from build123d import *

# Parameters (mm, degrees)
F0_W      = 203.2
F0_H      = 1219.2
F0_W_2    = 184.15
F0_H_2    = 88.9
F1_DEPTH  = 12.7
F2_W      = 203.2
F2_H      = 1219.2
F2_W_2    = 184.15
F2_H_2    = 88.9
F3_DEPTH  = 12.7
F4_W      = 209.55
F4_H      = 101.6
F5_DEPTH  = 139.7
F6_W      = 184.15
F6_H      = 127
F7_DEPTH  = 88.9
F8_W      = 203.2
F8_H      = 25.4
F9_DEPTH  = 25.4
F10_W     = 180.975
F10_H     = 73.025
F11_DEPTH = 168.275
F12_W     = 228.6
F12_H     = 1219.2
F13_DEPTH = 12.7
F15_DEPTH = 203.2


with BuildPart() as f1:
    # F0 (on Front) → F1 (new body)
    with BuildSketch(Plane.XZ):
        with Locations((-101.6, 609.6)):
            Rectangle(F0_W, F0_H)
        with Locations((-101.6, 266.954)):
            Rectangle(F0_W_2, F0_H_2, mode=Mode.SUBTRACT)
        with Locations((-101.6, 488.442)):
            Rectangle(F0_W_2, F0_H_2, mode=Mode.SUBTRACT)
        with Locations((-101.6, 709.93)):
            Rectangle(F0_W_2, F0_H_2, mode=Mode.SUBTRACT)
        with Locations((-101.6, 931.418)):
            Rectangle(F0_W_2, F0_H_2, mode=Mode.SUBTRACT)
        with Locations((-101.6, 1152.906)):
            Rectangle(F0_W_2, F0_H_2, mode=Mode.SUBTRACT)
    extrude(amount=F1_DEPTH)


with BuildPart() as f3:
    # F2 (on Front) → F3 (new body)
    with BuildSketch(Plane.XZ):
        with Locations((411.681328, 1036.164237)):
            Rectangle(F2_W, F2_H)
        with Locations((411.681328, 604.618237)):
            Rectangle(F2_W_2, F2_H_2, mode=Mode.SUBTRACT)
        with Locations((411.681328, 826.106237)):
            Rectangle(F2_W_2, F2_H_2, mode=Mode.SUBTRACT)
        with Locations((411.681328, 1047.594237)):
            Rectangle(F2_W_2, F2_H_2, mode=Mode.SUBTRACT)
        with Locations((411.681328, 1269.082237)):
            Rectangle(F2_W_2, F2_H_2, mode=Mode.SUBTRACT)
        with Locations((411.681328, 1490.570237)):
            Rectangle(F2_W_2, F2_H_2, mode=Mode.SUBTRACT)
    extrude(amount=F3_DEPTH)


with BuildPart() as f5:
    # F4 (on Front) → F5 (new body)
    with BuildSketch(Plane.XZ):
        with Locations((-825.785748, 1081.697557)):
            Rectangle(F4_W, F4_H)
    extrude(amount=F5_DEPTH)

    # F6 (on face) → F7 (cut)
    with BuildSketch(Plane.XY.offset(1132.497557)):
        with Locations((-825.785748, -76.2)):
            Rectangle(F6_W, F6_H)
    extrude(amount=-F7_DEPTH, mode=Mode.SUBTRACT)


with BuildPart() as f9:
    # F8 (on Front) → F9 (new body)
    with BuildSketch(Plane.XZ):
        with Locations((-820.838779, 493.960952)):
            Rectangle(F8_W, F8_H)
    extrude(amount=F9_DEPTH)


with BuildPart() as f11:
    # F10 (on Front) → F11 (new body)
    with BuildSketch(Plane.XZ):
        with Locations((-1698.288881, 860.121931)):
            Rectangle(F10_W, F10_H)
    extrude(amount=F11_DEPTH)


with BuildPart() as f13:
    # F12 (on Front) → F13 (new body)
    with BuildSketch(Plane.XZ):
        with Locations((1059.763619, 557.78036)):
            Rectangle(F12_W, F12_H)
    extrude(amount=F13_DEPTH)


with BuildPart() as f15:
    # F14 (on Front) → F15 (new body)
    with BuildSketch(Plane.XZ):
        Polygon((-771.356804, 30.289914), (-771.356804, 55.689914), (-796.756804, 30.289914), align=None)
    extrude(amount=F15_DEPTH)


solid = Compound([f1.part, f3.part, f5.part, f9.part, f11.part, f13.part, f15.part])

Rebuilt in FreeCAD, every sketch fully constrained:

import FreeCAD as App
import Part
import Sketcher
Q = App.Units.Quantity


def add_polygon(sketch, points):
    """Adds a closed chain of lines whose ends are joined by coincident constraints."""
    first, n = sketch.GeometryCount, len(points)
    for a, b in zip(points, points[1:] + points[:1]):
        sketch.addGeometry(Part.LineSegment(App.Vector(*a, 0), App.Vector(*b, 0)), False)
    for i in range(n):
        sketch.addConstraint(Sketcher.Constraint("Coincident", first + i, 2, first + (i + 1) % n, 1))

doc = App.newDocument("Part")
body = doc.addObject("PartDesign::Body", "Body")

sketch1 = body.newObject("Sketcher::SketchObject", "Sketch")
sketch1.AttachmentSupport = (doc.getObject("XZ_Plane"), [""])
sketch1.MapMode = "FlatFace"
add_polygon(sketch1, [(-203.2, 1219.2), (-203.2, 0), (0, 0), (0, 1219.2)])
add_polygon(sketch1, [(-9.525, 222.504), (-193.675, 222.504), (-193.675, 311.404), (-9.525, 311.404)])
add_polygon(sketch1, [(-9.525, 443.992), (-193.675, 443.992), (-193.675, 532.892), (-9.525, 532.892)])
add_polygon(sketch1, [(-9.525, 665.48), (-193.675, 665.48), (-193.675, 754.38), (-9.525, 754.38)])
add_polygon(sketch1, [(-9.525, 886.968), (-193.675, 886.968), (-193.675, 975.868), (-9.525, 975.868)])
add_polygon(sketch1, [(-9.525, 1108.456), (-193.675, 1108.456), (-193.675, 1197.356), (-9.525, 1197.356)])
sketch1.addConstraint([
    Sketcher.Constraint("Vertical", 0),
    Sketcher.Constraint("Horizontal", 1),
    Sketcher.Constraint("Vertical", 2),
    Sketcher.Constraint("Horizontal", 3),
    Sketcher.Constraint("Horizontal", 4),
    Sketcher.Constraint("Vertical", 5),
    Sketcher.Constraint("Horizontal", 6),
    Sketcher.Constraint("Vertical", 7),
    Sketcher.Constraint("Horizontal", 8),
    Sketcher.Constraint("Vertical", 9),
    Sketcher.Constraint("Horizontal", 10),
    Sketcher.Constraint("Vertical", 11),
    Sketcher.Constraint("Horizontal", 12),
    Sketcher.Constraint("Vertical", 13),
    Sketcher.Constraint("Horizontal", 14),
    Sketcher.Constraint("Vertical", 15),
    Sketcher.Constraint("Horizontal", 16),
    Sketcher.Constraint("Vertical", 17),
    Sketcher.Constraint("Horizontal", 18),
    Sketcher.Constraint("Vertical", 19),
    Sketcher.Constraint("Horizontal", 20),
    Sketcher.Constraint("Vertical", 21),
    Sketcher.Constraint("Horizontal", 22),
    Sketcher.Constraint("Vertical", 23),
    Sketcher.Constraint("Coincident", 1, 2, -1, 1),
    Sketcher.Constraint("Vertical", 5, 2, 8, 2),
    Sketcher.Constraint("Vertical", 7, 2, 10, 2),
    Sketcher.Constraint("Vertical", 9, 2, 12, 2),
    Sketcher.Constraint("Vertical", 11, 2, 14, 2),
    Sketcher.Constraint("Vertical", 13, 2, 16, 2),
    Sketcher.Constraint("Vertical", 15, 2, 18, 2),
    Sketcher.Constraint("Vertical", 17, 2, 20, 2),
    Sketcher.Constraint("Vertical", 19, 2, 22, 2),
    Sketcher.Constraint("Equal", 7, 9),
    Sketcher.Constraint("Equal", 11, 13),
    Sketcher.Constraint("Equal", 15, 17),
    Sketcher.Constraint("Equal", 19, 21),
    Sketcher.Constraint("DistanceX", 1, 1, 1, 2, Q("8 in")),
    Sketcher.Constraint("DistanceY", 0, 2, 0, 1, Q("48 in")),
    Sketcher.Constraint("DistanceY", 5, 1, 5, 2, Q("3.5 in")),
    Sketcher.Constraint("DistanceX", 4, 2, 4, 1, Q("7.25 in")),
    Sketcher.Constraint("DistanceY", -1, 1, 12, 2, Q("26.2 in")),
    Sketcher.Constraint("DistanceY", -1, 1, 4, 2, Q("8.76 in")),
    Sketcher.Constraint("DistanceY", -1, 1, 8, 2, Q("17.48 in")),
    Sketcher.Constraint("DistanceY", -1, 1, 16, 2, Q("34.92 in")),
    Sketcher.Constraint("DistanceY", -1, 1, 20, 2, Q("43.64 in")),
    Sketcher.Constraint("DistanceX", 4, 2, -1, 1, Q("7.625 in")),
])
pad1 = body.newObject("PartDesign::Pad", "Pad")
pad1.Profile = sketch1
pad1.Length = Q("0.5 in")
body2 = doc.addObject("PartDesign::Body", "Body001")

sketch2 = body2.newObject("Sketcher::SketchObject", "Sketch001")
sketch2.AttachmentSupport = (doc.getObject("XZ_Plane001"), [""])
sketch2.MapMode = "FlatFace"
add_polygon(sketch2, [(310.081328, 1645.764237), (310.081328, 426.564237), (513.281328, 426.564237), (513.281328, 1645.764237)])
add_polygon(sketch2, [(503.756328, 560.168237), (319.606328, 560.168237), (319.606328, 649.068237), (503.756328, 649.068237)])
add_polygon(sketch2, [(503.756328, 781.656237), (319.606328, 781.656237), (319.606328, 870.556237), (503.756328, 870.556237)])
add_polygon(sketch2, [(503.756328, 1003.144237), (319.606328, 1003.144237), (319.606328, 1092.044237), (503.756328, 1092.044237)])
add_polygon(sketch2, [(503.756328, 1224.632237), (319.606328, 1224.632237), (319.606328, 1313.532237), (503.756328, 1313.532237)])
add_polygon(sketch2, [(503.756328, 1446.120237), (319.606328, 1446.120237), (319.606328, 1535.020237), (503.756328, 1535.020237)])
sketch2.addConstraint([
    Sketcher.Constraint("Vertical", 0),
    Sketcher.Constraint("Horizontal", 1),
    Sketcher.Constraint("Vertical", 2),
    Sketcher.Constraint("Horizontal", 3),
    Sketcher.Constraint("Horizontal", 4),
    Sketcher.Constraint("Vertical", 5),
    Sketcher.Constraint("Horizontal", 6),
    Sketcher.Constraint("Vertical", 7),
    Sketcher.Constraint("Horizontal", 8),
    Sketcher.Constraint("Vertical", 9),
    Sketcher.Constraint("Horizontal", 10),
    Sketcher.Constraint("Vertical", 11),
    Sketcher.Constraint("Horizontal", 12),
    Sketcher.Constraint("Vertical", 13),
    Sketcher.Constraint("Horizontal", 14),
    Sketcher.Constraint("Vertical", 15),
    Sketcher.Constraint("Horizontal", 16),
    Sketcher.Constraint("Vertical", 17),
    Sketcher.Constraint("Horizontal", 18),
    Sketcher.Constraint("Vertical", 19),
    Sketcher.Constraint("Horizontal", 20),
    Sketcher.Constraint("Vertical", 21),
    Sketcher.Constraint("Horizontal", 22),
    Sketcher.Constraint("Vertical", 23),
    Sketcher.Constraint("Vertical", 5, 2, 8, 2),
    Sketcher.Constraint("Vertical", 7, 2, 10, 2),
    Sketcher.Constraint("Vertical", 9, 2, 12, 2),
    Sketcher.Constraint("Vertical", 11, 2, 14, 2),
    Sketcher.Constraint("Vertical", 13, 2, 16, 2),
    Sketcher.Constraint("Vertical", 15, 2, 18, 2),
    Sketcher.Constraint("Vertical", 17, 2, 20, 2),
    Sketcher.Constraint("Vertical", 19, 2, 22, 2),
    Sketcher.Constraint("Equal", 7, 9),
    Sketcher.Constraint("Equal", 11, 13),
    Sketcher.Constraint("Equal", 15, 17),
    Sketcher.Constraint("Equal", 19, 21),
    Sketcher.Constraint("DistanceX", 1, 1, 1, 2, Q("8 in")),
    Sketcher.Constraint("DistanceY", 0, 2, 0, 1, Q("48 in")),
    Sketcher.Constraint("DistanceY", 5, 1, 5, 2, Q("3.5 in")),
    Sketcher.Constraint("DistanceX", 4, 2, 4, 1, Q("7.25 in")),
    Sketcher.Constraint("DistanceY", 0, 2, 4, 2, Q("5.26 in")),
    Sketcher.Constraint("DistanceY", 5, 2, 8, 2, Q("5.22 in")),
    Sketcher.Constraint("DistanceY", 9, 2, 12, 2, Q("5.22 in")),
    Sketcher.Constraint("DistanceY", 13, 2, 16, 2, Q("5.22 in")),
    Sketcher.Constraint("DistanceY", 17, 2, 20, 2, Q("5.22 in")),
    Sketcher.Constraint("DistanceX", 0, 2, 4, 2, Q("0.375 in")),
    Sketcher.Constraint("DistanceX", -1, 1, 0, 2, Q("310.081328 mm")),
    Sketcher.Constraint("DistanceY", -1, 1, 0, 2, Q("426.564237 mm")),
])
pad2 = body2.newObject("PartDesign::Pad", "Pad001")
pad2.Profile = sketch2
pad2.Length = Q("0.5 in")
body3 = doc.addObject("PartDesign::Body", "Body002")

sketch3 = body3.newObject("Sketcher::SketchObject", "Sketch002")
sketch3.AttachmentSupport = (doc.getObject("XZ_Plane002"), [""])
sketch3.MapMode = "FlatFace"
add_polygon(sketch3, [(-930.560748, 1132.497557), (-930.560748, 1030.897557), (-721.010748, 1030.897557), (-721.010748, 1132.497557)])
sketch3.addConstraint([
    Sketcher.Constraint("Vertical", 0),
    Sketcher.Constraint("Horizontal", 1),
    Sketcher.Constraint("Vertical", 2),
    Sketcher.Constraint("Horizontal", 3),
    Sketcher.Constraint("DistanceY", 0, 2, 0, 1, Q("4 in")),
    Sketcher.Constraint("DistanceX", 1, 1, 1, 2, Q("8.25 in")),
    Sketcher.Constraint("DistanceX", 0, 2, -1, 1, Q("930.560748 mm")),
    Sketcher.Constraint("DistanceY", -1, 1, 0, 2, Q("1030.897557 mm")),
])
pad3 = body3.newObject("PartDesign::Pad", "Pad002")
pad3.Profile = sketch3
pad3.Length = Q("5.5 in")

sketch4 = body3.newObject("Sketcher::SketchObject", "Sketch003")
sketch4.AttachmentSupport = (doc.getObject("XY_Plane002"), [""])
sketch4.MapMode = "FlatFace"
sketch4.AttachmentOffset = App.Placement(App.Vector(0, 0, 1132.497557), App.Rotation())
add_polygon(sketch4, [(-917.860748, -12.7), (-917.860748, -139.7), (-733.710748, -139.7), (-733.710748, -12.7)])
sketch4.addConstraint([
    Sketcher.Constraint("Vertical", 0),
    Sketcher.Constraint("Horizontal", 1),
    Sketcher.Constraint("Vertical", 2),
    Sketcher.Constraint("Horizontal", 3),
    Sketcher.Constraint("DistanceY", 0, 2, 0, 1, Q("5 in")),
    Sketcher.Constraint("DistanceX", 1, 1, 1, 2, Q("7.25 in")),
    Sketcher.Constraint("DistanceY", 0, 2, -1, 1, Q("5.5 in")),
    Sketcher.Constraint("DistanceX", 1, 2, -1, 1, Q("733.710748 mm")),
])
pocket1 = body3.newObject("PartDesign::Pocket", "Pocket")
pocket1.Profile = sketch4
pocket1.Length = Q("3.5 in")
body4 = doc.addObject("PartDesign::Body", "Body003")

sketch5 = body4.newObject("Sketcher::SketchObject", "Sketch004")
sketch5.AttachmentSupport = (doc.getObject("XZ_Plane003"), [""])
sketch5.MapMode = "FlatFace"
add_polygon(sketch5, [(-922.438779, 506.660952), (-922.438779, 481.260952), (-719.238779, 481.260952), (-719.238779, 506.660952)])
sketch5.addConstraint([
    Sketcher.Constraint("Vertical", 0),
    Sketcher.Constraint("Horizontal", 1),
    Sketcher.Constraint("Vertical", 2),
    Sketcher.Constraint("Horizontal", 3),
    Sketcher.Constraint("DistanceX", 1, 1, 1, 2, Q("8 in")),
    Sketcher.Constraint("DistanceY", 0, 2, 0, 1, Q("1 in")),
    Sketcher.Constraint("DistanceX", 0, 2, -1, 1, Q("922.438779 mm")),
    Sketcher.Constraint("DistanceY", -1, 1, 0, 2, Q("481.260952 mm")),
])
pad4 = body4.newObject("PartDesign::Pad", "Pad003")
pad4.Profile = sketch5
pad4.Length = Q("1 in")
body5 = doc.addObject("PartDesign::Body", "Body004")

sketch6 = body5.newObject("Sketcher::SketchObject", "Sketch005")
sketch6.AttachmentSupport = (doc.getObject("XZ_Plane004"), [""])
sketch6.MapMode = "FlatFace"
add_polygon(sketch6, [(-1788.776381, 896.634431), (-1788.776381, 823.609431), (-1607.801381, 823.609431), (-1607.801381, 896.634431)])
sketch6.addConstraint([
    Sketcher.Constraint("Vertical", 0),
    Sketcher.Constraint("Horizontal", 1),
    Sketcher.Constraint("Vertical", 2),
    Sketcher.Constraint("Horizontal", 3),
    Sketcher.Constraint("DistanceX", 1, 1, 1, 2, Q("7.125 in")),
    Sketcher.Constraint("DistanceY", 0, 2, 0, 1, Q("2.875 in")),
    Sketcher.Constraint("DistanceX", 0, 2, -1, 1, Q("1788.776381 mm")),
    Sketcher.Constraint("DistanceY", -1, 1, 0, 2, Q("823.609431 mm")),
])
pad5 = body5.newObject("PartDesign::Pad", "Pad004")
pad5.Profile = sketch6
pad5.Length = Q("6.625 in")
body6 = doc.addObject("PartDesign::Body", "Body005")

sketch7 = body6.newObject("Sketcher::SketchObject", "Sketch006")
sketch7.AttachmentSupport = (doc.getObject("XZ_Plane005"), [""])
sketch7.MapMode = "FlatFace"
add_polygon(sketch7, [(945.463619, 1167.38036), (945.463619, -51.81964), (1174.063619, -51.81964), (1174.063619, 1167.38036)])
sketch7.addConstraint([
    Sketcher.Constraint("Vertical", 0),
    Sketcher.Constraint("Horizontal", 1),
    Sketcher.Constraint("Vertical", 2),
    Sketcher.Constraint("Horizontal", 3),
    Sketcher.Constraint("DistanceX", 1, 1, 1, 2, Q("9 in")),
    Sketcher.Constraint("DistanceY", 0, 2, 0, 1, Q("48 in")),
    Sketcher.Constraint("DistanceX", -1, 1, 0, 2, Q("945.463619 mm")),
    Sketcher.Constraint("DistanceY", 0, 2, -1, 1, Q("51.81964 mm")),
])
pad6 = body6.newObject("PartDesign::Pad", "Pad005")
pad6.Profile = sketch7
pad6.Length = Q("0.5 in")
body7 = doc.addObject("PartDesign::Body", "Body006")

sketch8 = body7.newObject("Sketcher::SketchObject", "Sketch007")
sketch8.AttachmentSupport = (doc.getObject("XZ_Plane006"), [""])
sketch8.MapMode = "FlatFace"
add_polygon(sketch8, [(-771.356804, 30.289914), (-771.356804, 55.689914), (-796.756804, 30.289914)])
sketch8.addConstraint([
    Sketcher.Constraint("Vertical", 0),
    Sketcher.Constraint("Horizontal", 2),
    Sketcher.Constraint("Equal", 2, 0),
    Sketcher.Constraint("DistanceX", 2, 1, 2, 2, Q("1 in")),
    Sketcher.Constraint("DistanceX", 0, 2, -1, 1, Q("771.356804 mm")),
    Sketcher.Constraint("DistanceY", -1, 1, 0, 2, Q("55.689914 mm")),
])
pad7 = body7.newObject("PartDesign::Pad", "Pad006")
pad7.Profile = sketch8
pad7.Length = Q("8 in")

doc.recompute()
